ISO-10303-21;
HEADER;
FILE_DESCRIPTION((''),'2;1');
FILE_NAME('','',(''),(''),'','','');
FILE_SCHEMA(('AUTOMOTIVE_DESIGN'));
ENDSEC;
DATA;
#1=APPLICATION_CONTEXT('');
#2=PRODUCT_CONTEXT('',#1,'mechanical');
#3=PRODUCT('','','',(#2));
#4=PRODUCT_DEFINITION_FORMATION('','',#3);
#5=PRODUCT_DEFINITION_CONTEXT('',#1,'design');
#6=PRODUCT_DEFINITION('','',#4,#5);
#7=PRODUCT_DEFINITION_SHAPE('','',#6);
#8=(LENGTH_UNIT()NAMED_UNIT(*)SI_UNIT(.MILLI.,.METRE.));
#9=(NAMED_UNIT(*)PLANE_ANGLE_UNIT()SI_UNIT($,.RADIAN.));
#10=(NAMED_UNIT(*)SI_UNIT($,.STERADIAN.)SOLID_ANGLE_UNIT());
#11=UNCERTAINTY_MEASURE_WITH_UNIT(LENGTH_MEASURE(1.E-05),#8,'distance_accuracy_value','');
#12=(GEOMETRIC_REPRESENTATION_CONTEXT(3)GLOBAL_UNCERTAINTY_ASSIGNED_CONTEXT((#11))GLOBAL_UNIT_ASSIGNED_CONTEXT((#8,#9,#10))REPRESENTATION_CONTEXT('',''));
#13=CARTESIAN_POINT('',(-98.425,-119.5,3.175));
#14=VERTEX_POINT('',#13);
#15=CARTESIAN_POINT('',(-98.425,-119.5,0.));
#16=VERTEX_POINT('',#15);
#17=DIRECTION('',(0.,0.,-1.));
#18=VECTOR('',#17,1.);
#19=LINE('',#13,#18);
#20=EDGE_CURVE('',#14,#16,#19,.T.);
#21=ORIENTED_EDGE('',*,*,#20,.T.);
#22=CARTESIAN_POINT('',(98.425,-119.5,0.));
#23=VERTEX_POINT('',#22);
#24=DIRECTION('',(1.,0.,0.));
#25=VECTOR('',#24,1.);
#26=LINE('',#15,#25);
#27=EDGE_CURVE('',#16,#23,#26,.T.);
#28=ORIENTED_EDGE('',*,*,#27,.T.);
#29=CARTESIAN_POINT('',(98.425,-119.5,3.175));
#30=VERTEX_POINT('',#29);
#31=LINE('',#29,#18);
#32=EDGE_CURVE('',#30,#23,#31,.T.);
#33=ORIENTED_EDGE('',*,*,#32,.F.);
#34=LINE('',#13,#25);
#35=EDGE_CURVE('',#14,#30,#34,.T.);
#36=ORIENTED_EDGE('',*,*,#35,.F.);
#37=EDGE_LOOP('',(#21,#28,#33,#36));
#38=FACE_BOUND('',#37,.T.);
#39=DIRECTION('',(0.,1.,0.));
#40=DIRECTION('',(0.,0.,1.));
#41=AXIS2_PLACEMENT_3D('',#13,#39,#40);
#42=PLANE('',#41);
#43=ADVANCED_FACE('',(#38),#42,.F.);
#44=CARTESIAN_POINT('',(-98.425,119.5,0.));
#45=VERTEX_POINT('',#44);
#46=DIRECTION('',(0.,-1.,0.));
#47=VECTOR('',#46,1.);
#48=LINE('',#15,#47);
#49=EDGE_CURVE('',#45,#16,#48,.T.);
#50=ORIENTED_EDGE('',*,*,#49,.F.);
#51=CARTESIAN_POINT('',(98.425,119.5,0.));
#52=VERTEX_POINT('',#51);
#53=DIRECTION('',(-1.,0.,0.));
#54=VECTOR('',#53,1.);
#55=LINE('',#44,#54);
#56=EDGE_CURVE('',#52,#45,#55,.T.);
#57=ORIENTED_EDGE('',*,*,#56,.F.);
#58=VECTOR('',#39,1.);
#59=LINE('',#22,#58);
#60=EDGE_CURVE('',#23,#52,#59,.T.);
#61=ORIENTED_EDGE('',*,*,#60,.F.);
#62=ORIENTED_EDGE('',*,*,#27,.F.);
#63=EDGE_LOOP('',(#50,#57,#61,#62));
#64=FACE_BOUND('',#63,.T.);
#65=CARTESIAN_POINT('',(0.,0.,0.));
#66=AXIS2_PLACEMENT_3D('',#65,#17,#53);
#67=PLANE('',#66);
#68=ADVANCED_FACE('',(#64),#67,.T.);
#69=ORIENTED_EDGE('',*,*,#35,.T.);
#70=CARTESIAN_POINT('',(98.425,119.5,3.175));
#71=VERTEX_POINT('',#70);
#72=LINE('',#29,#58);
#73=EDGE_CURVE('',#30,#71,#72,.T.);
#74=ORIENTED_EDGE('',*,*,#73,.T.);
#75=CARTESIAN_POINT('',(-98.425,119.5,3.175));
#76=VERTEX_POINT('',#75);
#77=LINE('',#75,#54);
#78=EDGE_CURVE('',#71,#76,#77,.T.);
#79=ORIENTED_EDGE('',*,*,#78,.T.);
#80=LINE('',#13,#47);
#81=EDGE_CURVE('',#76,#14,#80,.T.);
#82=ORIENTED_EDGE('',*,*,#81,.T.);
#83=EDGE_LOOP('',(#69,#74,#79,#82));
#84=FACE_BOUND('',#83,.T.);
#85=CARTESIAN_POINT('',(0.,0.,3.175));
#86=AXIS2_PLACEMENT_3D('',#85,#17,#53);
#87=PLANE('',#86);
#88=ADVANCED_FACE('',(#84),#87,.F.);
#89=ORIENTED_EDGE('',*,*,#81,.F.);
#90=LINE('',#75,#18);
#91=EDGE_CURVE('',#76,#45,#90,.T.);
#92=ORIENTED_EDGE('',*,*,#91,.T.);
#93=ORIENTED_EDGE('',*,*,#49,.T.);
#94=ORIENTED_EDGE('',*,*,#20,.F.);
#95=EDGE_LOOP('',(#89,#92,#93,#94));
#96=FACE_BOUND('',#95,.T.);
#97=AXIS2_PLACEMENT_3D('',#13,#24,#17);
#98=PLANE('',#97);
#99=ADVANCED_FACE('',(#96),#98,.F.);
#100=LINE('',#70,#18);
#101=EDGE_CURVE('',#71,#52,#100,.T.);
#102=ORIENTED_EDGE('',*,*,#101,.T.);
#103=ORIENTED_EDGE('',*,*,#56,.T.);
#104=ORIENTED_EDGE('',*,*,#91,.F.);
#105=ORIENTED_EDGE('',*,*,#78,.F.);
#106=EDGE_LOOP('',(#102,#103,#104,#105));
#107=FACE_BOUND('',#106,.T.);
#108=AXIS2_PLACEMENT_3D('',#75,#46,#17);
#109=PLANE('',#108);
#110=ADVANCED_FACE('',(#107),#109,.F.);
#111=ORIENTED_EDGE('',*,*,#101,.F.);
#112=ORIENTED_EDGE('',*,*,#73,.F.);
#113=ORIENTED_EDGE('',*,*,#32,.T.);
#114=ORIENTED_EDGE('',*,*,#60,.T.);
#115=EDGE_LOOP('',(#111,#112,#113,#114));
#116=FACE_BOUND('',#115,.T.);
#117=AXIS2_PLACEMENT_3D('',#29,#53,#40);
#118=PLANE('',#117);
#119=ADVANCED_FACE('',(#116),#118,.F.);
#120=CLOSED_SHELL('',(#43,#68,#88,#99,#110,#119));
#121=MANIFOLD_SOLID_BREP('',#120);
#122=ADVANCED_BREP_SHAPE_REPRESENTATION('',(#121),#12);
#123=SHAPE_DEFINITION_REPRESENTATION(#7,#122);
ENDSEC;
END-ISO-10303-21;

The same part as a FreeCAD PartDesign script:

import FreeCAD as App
import Part
import Sketcher
from FreeCAD import Vector
Q = App.Units.Quantity


def add_polygon(sketch, points):
    """Adds a closed chain of lines whose ends are joined by coincident constraints."""
    first, n = sketch.GeometryCount, len(points)
    for a, b in zip(points, points[1:] + points[:1]):
        sketch.addGeometry(Part.LineSegment(App.Vector(*a, 0), App.Vector(*b, 0)), False)
    for i in range(n):
        sketch.addConstraint(Sketcher.Constraint("Coincident", first + i, 2, first + (i + 1) % n, 1))

doc = App.newDocument("Part")
params = doc.addObject("Spreadsheet::Sheet", "Params")
for row, (alias, value) in enumerate([
    ("sketch1_width", "7.75 in"),
    ("pad1_length", "0.125 in"),
], start=1):
    params.set(f"A{row}", alias)
    params.set(f"B{row}", "=" + value)
    params.setAlias(f"B{row}", alias)

body = doc.addObject("PartDesign::Body", "Body")

# Sketch on XY plane
sketch1 = doc.addObject("Sketcher::SketchObject", "Sketch")
body.addObject(sketch1)
sketch1.AttachmentSupport = (doc.XY_Plane, [""])
sketch1.MapMode = "FlatFace"
add_polygon(sketch1, [(-98, 120), (-98, -120), (98, -120), (98, 120)])  # lines 0-3
sketch1.addConstraint([
    Sketcher.Constraint("Vertical", 0),
    Sketcher.Constraint("Horizontal", 1),
    Sketcher.Constraint("Vertical", 2),
    Sketcher.Constraint("Horizontal", 3),
    Sketcher.Constraint("Symmetric", 0, 2, 2, 2, -1, 1),
    Sketcher.Constraint("DistanceX", 1, 1, 1, 2, Q("7.75 in")),
    Sketcher.Constraint("DistanceY", 0, 2, 0, 1, Q("239 mm")),
])
sketch1.setExpression("Constraints[9]", "Params.sketch1_width")
pad1 = doc.addObject("PartDesign::Pad", "Pad")
body.addObject(pad1)
pad1.Profile = sketch1
pad1.setExpression("Length", "Params.pad1_length")

doc.recompute()
